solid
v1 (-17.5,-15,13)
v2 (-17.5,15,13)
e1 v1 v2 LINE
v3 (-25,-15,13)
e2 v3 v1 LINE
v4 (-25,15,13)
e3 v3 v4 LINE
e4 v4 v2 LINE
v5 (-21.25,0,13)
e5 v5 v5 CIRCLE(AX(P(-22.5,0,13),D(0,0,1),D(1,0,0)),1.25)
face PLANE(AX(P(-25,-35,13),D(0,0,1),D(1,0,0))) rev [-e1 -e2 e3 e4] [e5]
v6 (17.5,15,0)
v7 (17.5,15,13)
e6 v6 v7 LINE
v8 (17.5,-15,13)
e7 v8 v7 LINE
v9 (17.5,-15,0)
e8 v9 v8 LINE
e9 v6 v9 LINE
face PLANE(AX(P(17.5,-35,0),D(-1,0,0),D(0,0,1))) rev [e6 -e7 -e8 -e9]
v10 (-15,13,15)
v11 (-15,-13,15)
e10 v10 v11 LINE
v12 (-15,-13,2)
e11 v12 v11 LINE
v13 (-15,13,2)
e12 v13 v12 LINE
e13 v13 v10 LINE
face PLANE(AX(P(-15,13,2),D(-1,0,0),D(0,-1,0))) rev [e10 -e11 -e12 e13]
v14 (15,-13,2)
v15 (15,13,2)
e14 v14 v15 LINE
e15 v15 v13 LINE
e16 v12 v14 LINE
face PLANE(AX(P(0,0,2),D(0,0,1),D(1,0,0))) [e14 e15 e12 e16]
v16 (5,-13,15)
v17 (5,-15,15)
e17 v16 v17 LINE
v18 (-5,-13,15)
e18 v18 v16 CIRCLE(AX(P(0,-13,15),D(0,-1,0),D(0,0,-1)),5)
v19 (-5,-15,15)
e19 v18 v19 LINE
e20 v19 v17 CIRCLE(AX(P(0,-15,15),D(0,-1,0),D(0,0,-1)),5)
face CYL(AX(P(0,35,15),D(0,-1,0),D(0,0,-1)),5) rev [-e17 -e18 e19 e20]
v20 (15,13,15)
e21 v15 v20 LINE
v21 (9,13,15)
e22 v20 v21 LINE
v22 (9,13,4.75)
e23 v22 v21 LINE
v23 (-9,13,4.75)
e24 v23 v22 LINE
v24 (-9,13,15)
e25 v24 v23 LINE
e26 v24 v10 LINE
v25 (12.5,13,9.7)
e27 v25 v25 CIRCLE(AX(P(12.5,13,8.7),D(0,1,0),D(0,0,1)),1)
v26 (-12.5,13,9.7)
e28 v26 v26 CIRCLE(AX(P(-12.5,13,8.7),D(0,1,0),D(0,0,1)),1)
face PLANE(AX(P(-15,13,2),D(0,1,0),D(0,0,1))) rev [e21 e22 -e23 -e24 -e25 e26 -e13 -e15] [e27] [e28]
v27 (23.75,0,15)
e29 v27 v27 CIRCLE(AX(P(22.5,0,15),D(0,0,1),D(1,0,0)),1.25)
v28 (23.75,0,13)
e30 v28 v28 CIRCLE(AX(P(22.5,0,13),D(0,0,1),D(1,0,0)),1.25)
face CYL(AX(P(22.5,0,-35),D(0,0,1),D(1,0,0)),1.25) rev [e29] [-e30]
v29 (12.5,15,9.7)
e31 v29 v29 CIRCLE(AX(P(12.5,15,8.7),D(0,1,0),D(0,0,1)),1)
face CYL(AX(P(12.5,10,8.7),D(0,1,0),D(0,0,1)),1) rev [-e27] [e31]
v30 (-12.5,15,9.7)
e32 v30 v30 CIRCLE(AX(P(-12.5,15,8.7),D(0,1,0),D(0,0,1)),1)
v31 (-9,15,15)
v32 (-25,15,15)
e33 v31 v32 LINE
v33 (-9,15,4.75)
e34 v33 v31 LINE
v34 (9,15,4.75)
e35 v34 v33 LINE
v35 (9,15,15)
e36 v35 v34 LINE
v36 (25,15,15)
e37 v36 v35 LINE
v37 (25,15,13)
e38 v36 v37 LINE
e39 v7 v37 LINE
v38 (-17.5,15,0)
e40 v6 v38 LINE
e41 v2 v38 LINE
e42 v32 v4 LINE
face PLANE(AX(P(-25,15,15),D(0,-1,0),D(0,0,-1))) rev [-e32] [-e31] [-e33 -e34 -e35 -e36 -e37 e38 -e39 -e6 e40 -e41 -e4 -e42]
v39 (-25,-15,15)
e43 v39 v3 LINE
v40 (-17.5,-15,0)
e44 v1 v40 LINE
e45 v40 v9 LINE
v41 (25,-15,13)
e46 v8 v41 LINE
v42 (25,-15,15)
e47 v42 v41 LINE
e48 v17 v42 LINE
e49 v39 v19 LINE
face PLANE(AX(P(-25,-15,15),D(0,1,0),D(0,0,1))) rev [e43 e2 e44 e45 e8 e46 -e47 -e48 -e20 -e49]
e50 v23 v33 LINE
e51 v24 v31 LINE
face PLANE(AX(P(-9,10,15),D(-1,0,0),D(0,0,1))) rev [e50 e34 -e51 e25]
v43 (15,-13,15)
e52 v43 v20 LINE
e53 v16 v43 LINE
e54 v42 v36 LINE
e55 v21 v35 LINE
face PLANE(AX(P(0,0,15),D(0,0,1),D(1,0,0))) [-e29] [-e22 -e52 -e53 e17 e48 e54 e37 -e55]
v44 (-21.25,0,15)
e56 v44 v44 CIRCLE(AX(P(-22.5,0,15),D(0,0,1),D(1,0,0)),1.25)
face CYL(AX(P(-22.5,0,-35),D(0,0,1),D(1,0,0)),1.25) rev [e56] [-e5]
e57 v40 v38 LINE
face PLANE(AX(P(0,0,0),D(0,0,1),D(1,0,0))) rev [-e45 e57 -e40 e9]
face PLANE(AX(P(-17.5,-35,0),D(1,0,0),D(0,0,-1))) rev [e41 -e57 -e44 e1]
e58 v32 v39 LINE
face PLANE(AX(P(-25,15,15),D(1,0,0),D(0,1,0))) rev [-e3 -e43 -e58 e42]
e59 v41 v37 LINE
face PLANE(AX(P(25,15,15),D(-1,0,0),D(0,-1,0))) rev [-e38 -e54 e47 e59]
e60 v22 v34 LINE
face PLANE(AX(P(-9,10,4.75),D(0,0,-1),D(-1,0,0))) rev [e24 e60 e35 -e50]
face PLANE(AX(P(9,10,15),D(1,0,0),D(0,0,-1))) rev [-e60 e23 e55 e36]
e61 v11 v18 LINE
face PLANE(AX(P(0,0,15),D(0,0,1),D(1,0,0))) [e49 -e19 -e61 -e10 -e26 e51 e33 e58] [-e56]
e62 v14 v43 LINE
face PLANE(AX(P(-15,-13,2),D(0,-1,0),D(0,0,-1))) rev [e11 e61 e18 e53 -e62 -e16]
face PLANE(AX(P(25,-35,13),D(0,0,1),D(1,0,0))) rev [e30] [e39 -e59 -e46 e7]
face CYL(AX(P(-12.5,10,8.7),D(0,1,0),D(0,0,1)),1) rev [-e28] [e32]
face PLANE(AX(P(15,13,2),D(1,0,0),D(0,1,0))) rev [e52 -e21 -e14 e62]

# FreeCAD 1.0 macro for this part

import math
import FreeCAD as App
import Part
import Sketcher

V = App.Vector
Q = App.Units.Quantity


def add_polygon(sketch, points):
    """Adds a closed chain of lines whose ends are joined by coincident constraints."""
    first, n = sketch.GeometryCount, len(points)
    for a, b in zip(points, points[1:] + points[:1]):
        sketch.addGeometry(Part.LineSegment(App.Vector(*a, 0), App.Vector(*b, 0)), False)
    for i in range(n):
        sketch.addConstraint(Sketcher.Constraint("Coincident", first + i, 2, first + (i + 1) % n, 1))

doc = App.newDocument("Part")
body = doc.addObject("PartDesign::Body", "Body")

# Sketch on XY plane
sketch1 = doc.addObject("Sketcher::SketchObject", "Sketch")
body.addObject(sketch1)
sketch1.AttachmentSupport = (doc.XY_Plane, [""])
sketch1.MapMode = "FlatFace"
add_polygon(sketch1, [(-25, 15), (-25, -15), (25, -15), (25, 15)])  # lines 0-3
sketch1.addConstraint(Sketcher.Constraint("Vertical", 0))
sketch1.addConstraint(Sketcher.Constraint("Horizontal", 1))
sketch1.addConstraint(Sketcher.Constraint("Vertical", 2))
sketch1.addConstraint(Sketcher.Constraint("Horizontal", 3))
sketch1.addConstraint(Sketcher.Constraint("Symmetric", 0, 2, 2, 2, -1, 1))
sketch1.addConstraint(Sketcher.Constraint("DistanceX", 1, 1, 1, 2, Q("50 mm")))
sketch1.addConstraint(Sketcher.Constraint("DistanceY", 0, 2, 0, 1, Q("30 mm")))
pad1 = doc.addObject("PartDesign::Pad", "Pad")
body.addObject(pad1)
pad1.Profile = sketch1
pad1.Length = 15

# Sketch on XZ plane
sketch2 = doc.addObject("Sketcher::SketchObject", "Sketch001")
body.addObject(sketch2)
sketch2.AttachmentSupport = (doc.XZ_Plane, [""])
sketch2.MapMode = "FlatFace"
sketch2.AttachmentOffset = App.Placement(V(0, 0, -15), App.Rotation())
add_polygon(sketch2, [(-9, 5), (-9, 15), (9, 15), (9, 5)])  # lines 0-3
sketch2.addConstraint(Sketcher.Constraint("Vertical", 0))
sketch2.addConstraint(Sketcher.Constraint("Horizontal", 1))
sketch2.addConstraint(Sketcher.Constraint("Vertical", 2))
sketch2.addConstraint(Sketcher.Constraint("Horizontal", 3))
sketch2.addConstraint(Sketcher.Constraint("DistanceX", 1, 1, 1, 2, Q("18 mm")))
sketch2.addConstraint(Sketcher.Constraint("DistanceX", 0, 2, -1, 1, Q("9 mm")))
sketch2.addConstraint(Sketcher.Constraint("DistanceY", -1, 1, 0, 2, Q("15 mm")))
sketch2.addConstraint(Sketcher.Constraint("DistanceY", 0, 1, 0, 2, Q("10.25 mm")))
pocket1 = doc.addObject("PartDesign::Pocket", "Pocket")
body.addObject(pocket1)
pocket1.Profile = sketch2
pocket1.Length = 5
pocket1.Reversed = True

# Sketch on XY plane
sketch3 = doc.addObject("Sketcher::SketchObject", "Sketch002")
body.addObject(sketch3)
sketch3.AttachmentSupport = (doc.XY_Plane, [""])
sketch3.MapMode = "FlatFace"
sketch3.AttachmentOffset = App.Placement(V(0, 0, 15), App.Rotation())
add_polygon(sketch3, [(-15, 13), (-15, -13), (15, -13), (15, 13)])  # lines 0-3
sketch3.addConstraint(Sketcher.Constraint("Vertical", 0))
sketch3.addConstraint(Sketcher.Constraint("Horizontal", 1))
sketch3.addConstraint(Sketcher.Constraint("Vertical", 2))
sketch3.addConstraint(Sketcher.Constraint("Horizontal", 3))
sketch3.addConstraint(Sketcher.Constraint("Symmetric", 0, 2, 2, 2, -1, 1))
sketch3.addConstraint(Sketcher.Constraint("DistanceX", 1, 1, 1, 2, Q("30 mm")))
sketch3.addConstraint(Sketcher.Constraint("DistanceY", 0, 2, 0, 1, Q("26 mm")))
pocket2 = doc.addObject("PartDesign::Pocket", "Pocket001")
body.addObject(pocket2)
pocket2.Profile = sketch3
pocket2.Length = 13

# Sketch on XZ plane
sketch4 = doc.addObject("Sketcher::SketchObject", "Sketch003")
body.addObject(sketch4)
sketch4.AttachmentSupport = (doc.XZ_Plane, [""])
sketch4.MapMode = "FlatFace"
sketch4.AttachmentOffset = App.Placement(V(0, 0, -15), App.Rotation())
add_polygon(sketch4, [(-25, 0), (-25, 13), (-18, 13), (-18, 0)])  # lines 0-3
sketch4.addConstraint(Sketcher.Constraint("Vertical", 0))
sketch4.addConstraint(Sketcher.Constraint("Horizontal", 1))
sketch4.addConstraint(Sketcher.Constraint("Vertical", 2))
sketch4.addConstraint(Sketcher.Constraint("Horizontal", 3))
sketch4.addConstraint(Sketcher.Constraint("PointOnObject", 2, 2, -1))
sketch4.addConstraint(Sketcher.Constraint("DistanceY", 0, 1, 0, 2, Q("13 mm")))
sketch4.addConstraint(Sketcher.Constraint("DistanceX", 1, 1, 1, 2, Q("7.5 mm")))
sketch4.addConstraint(Sketcher.Constraint("DistanceX", 0, 2, -1, 1, Q("25 mm")))
pocket3 = doc.addObject("PartDesign::Pocket", "Pocket002")
body.addObject(pocket3)
pocket3.Profile = sketch4
pocket3.Length = 50
pocket3.Reversed = True

# Sketch on XZ plane
sketch5 = doc.addObject("Sketcher::SketchObject", "Sketch004")
body.addObject(sketch5)
sketch5.AttachmentSupport = (doc.XZ_Plane, [""])
sketch5.MapMode = "FlatFace"
sketch5.AttachmentOffset = App.Placement(V(0, 0, -15), App.Rotation())
add_polygon(sketch5, [(18, 0), (18, 13), (25, 13), (25, 0)])  # lines 0-3
sketch5.addConstraint(Sketcher.Constraint("Vertical", 0))
sketch5.addConstraint(Sketcher.Constraint("Horizontal", 1))
sketch5.addConstraint(Sketcher.Constraint("Vertical", 2))
sketch5.addConstraint(Sketcher.Constraint("Horizontal", 3))
sketch5.addConstraint(Sketcher.Constraint("PointOnObject", 2, 2, -1))
sketch5.addConstraint(Sketcher.Constraint("DistanceY", 0, 1, 0, 2, Q("13 mm")))
sketch5.addConstraint(Sketcher.Constraint("DistanceX", 1, 1, 1, 2, Q("7.5 mm")))
sketch5.addConstraint(Sketcher.Constraint("DistanceX", -1, 1, 1, 2, Q("25 mm")))
pocket4 = doc.addObject("PartDesign::Pocket", "Pocket003")
body.addObject(pocket4)
pocket4.Profile = sketch5
pocket4.Length = 50
pocket4.Reversed = True

# Sketch on XZ plane
sketch6 = doc.addObject("Sketcher::SketchObject", "Sketch005")
body.addObject(sketch6)
sketch6.AttachmentSupport = (doc.XZ_Plane, [""])
sketch6.MapMode = "FlatFace"
sketch6.AttachmentOffset = App.Placement(V(0, 0, 15), App.Rotation())
sketch6.addGeometry(Part.LineSegment(V(5, 15, 0), V(-5, 15, 0)), False)
sketch6.addGeometry(Part.ArcOfCircle(Part.Circle(V(0, 15, 0), V(0, 0, 1), 5), math.radians(180), math.radians(360)), False)
sketch6.addConstraint(Sketcher.Constraint("Coincident", 0, 1, 1, 2))
sketch6.addConstraint(Sketcher.Constraint("Coincident", 1, 1, 0, 2))
sketch6.addConstraint(Sketcher.Constraint("Horizontal", 0))
sketch6.addConstraint(Sketcher.Constraint("PointOnObject", 1, 3, -2))
sketch6.addConstraint(Sketcher.Constraint("Horizontal", 1, 3, 0, 1))
sketch6.addConstraint(Sketcher.Constraint("Radius", 1, Q("5 mm")))
sketch6.addConstraint(Sketcher.Constraint("DistanceY", -1, 1, 1, 3, Q("15 mm")))
pocket5 = doc.addObject("PartDesign::Pocket", "Pocket004")
body.addObject(pocket5)
pocket5.Profile = sketch6
pocket5.Length = 50

# Sketch on XY plane
sketch7 = doc.addObject("Sketcher::SketchObject", "Sketch006")
body.addObject(sketch7)
sketch7.AttachmentSupport = (doc.XY_Plane, [""])
sketch7.MapMode = "FlatFace"
sketch7.AttachmentOffset = App.Placement(V(0, 0, 15), App.Rotation())
sketch7.addGeometry(Part.Circle(V(22.5, 0, 0), V(0, 0, 1), 1.2), False)
sketch7.addConstraint(Sketcher.Constraint("PointOnObject", 0, 3, -1))
sketch7.addConstraint(Sketcher.Constraint("Diameter", 0, Q("2.5 mm")))
sketch7.addConstraint(Sketcher.Constraint("DistanceX", -1, 1, 0, 3, Q("22.5 mm")))
pocket6 = doc.addObject("PartDesign::Pocket", "Pocket005")
body.addObject(pocket6)
pocket6.Profile = sketch7
pocket6.Length = 50
doc.recompute()

linearpattern = doc.addObject("PartDesign::LinearPattern", "LinearPattern")
body.addObject(linearpattern)
linearpattern.Originals = [pocket6]
linearpattern.Direction = (doc.X_Axis, [""])
linearpattern.Mode = "offset"
linearpattern.Offset = 45
linearpattern.Occurrences = 2
linearpattern.Reversed = True
body.Tip = linearpattern

# Sketch on XZ plane
sketch8 = doc.addObject("Sketcher::SketchObject", "Sketch007")
body.addObject(sketch8)
sketch8.AttachmentSupport = (doc.XZ_Plane, [""])
sketch8.MapMode = "FlatFace"
sketch8.AttachmentOffset = App.Placement(V(0, 0, -15), App.Rotation())
sketch8.addGeometry(Part.Circle(V(-12.5, 8.7, 0), V(0, 0, 1), 1), False)
sketch8.addConstraint(Sketcher.Constraint("Diameter", 0, Q("2 mm")))
sketch8.addConstraint(Sketcher.Constraint("DistanceX", 0, 3, -1, 1, Q("12.5 mm")))
sketch8.addConstraint(Sketcher.Constraint("DistanceY", -1, 1, 0, 3, Q("8.7 mm")))
pocket7 = doc.addObject("PartDesign::Pocket", "Pocket006")
body.addObject(pocket7)
pocket7.Profile = sketch8
pocket7.Length = 5
pocket7.Reversed = True
doc.recompute()

linearpattern2 = doc.addObject("PartDesign::LinearPattern", "LinearPattern001")
body.addObject(linearpattern2)
linearpattern2.Originals = [pocket7]
linearpattern2.Direction = (doc.X_Axis, [""])
linearpattern2.Mode = "offset"
linearpattern2.Offset = 25
linearpattern2.Occurrences = 2
body.Tip = linearpattern2

doc.recompute()
